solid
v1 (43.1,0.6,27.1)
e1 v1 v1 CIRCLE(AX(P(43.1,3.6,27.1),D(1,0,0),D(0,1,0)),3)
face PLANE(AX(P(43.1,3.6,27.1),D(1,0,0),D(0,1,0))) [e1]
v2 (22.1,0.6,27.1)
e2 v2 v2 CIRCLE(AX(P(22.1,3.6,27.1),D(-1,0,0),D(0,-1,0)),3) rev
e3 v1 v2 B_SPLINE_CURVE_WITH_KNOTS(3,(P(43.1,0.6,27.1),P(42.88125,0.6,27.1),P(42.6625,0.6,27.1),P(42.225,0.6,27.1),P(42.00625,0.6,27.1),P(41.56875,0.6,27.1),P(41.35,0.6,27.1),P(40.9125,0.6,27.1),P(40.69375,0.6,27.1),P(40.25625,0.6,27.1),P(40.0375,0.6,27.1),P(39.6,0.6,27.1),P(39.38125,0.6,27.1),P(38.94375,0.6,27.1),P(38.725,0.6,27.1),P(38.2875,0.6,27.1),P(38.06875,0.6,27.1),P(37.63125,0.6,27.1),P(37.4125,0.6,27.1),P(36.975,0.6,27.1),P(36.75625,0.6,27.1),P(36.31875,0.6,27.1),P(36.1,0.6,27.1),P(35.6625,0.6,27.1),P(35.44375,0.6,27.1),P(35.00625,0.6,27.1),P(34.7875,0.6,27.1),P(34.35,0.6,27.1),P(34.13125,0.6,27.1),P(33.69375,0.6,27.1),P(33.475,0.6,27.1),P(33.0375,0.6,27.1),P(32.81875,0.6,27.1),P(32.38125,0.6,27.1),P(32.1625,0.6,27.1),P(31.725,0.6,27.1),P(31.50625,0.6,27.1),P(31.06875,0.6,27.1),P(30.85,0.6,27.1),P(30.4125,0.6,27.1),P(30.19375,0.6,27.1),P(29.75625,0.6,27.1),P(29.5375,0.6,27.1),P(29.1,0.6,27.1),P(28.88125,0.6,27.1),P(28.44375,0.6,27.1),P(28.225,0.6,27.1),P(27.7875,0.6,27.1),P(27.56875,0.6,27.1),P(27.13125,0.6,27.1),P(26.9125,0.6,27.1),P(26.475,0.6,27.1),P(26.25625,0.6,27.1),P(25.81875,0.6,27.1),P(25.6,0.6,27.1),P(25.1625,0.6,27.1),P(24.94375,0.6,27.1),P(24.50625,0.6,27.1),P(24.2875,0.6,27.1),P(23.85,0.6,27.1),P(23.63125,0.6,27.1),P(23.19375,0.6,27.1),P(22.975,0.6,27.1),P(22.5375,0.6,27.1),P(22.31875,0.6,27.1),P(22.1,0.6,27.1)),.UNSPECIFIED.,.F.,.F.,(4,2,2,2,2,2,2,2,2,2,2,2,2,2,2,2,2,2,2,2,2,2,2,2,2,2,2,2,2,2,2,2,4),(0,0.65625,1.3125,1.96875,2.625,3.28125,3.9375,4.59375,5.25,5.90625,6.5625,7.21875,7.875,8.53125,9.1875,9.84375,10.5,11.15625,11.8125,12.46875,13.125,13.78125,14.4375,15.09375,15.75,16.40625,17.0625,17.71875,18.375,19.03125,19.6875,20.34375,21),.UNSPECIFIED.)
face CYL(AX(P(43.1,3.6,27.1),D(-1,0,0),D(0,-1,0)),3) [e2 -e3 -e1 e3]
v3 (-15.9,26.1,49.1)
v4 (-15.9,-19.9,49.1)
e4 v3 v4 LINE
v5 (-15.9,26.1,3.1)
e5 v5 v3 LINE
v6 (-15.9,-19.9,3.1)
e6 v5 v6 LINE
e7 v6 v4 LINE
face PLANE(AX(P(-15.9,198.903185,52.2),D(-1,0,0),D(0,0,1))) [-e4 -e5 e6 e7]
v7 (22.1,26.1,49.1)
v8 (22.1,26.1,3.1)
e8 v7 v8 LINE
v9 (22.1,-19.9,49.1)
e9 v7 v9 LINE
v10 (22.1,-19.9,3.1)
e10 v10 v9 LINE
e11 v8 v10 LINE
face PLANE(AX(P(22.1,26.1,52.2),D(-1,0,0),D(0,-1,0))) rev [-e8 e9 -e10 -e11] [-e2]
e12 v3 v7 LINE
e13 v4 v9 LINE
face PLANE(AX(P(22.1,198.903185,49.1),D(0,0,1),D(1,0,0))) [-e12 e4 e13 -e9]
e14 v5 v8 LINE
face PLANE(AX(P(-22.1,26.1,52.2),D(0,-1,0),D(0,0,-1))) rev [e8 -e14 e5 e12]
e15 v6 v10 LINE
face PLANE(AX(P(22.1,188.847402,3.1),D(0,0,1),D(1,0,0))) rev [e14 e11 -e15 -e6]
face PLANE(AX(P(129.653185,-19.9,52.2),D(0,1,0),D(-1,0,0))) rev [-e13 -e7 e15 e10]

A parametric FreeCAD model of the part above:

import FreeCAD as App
import Part
import Sketcher
from FreeCAD import Vector

doc = App.newDocument("Part")
body = doc.addObject("PartDesign::Body", "Body")

sketch1 = doc.addObject("Sketcher::SketchObject", "Sketch")
body.addObject(sketch1)
sketch1.AttachmentSupport = (doc.XY_Plane, [""])
sketch1.MapMode = "FlatFace"
sketch1.addGeometry(Part.LineSegment(Vector(-22, 26, 0), Vector(-22, -26, 0)), False)
sketch1.addGeometry(Part.LineSegment(Vector(-22, -26, 0), Vector(22, -26, 0)), False)
sketch1.addGeometry(Part.LineSegment(Vector(22, -26, 0), Vector(22, 26, 0)), False)
sketch1.addGeometry(Part.LineSegment(Vector(22, 26, 0), Vector(-22, 26, 0)), False)
sketch1.addConstraint(Sketcher.Constraint("Coincident", 0, 2, 1, 1))
sketch1.addConstraint(Sketcher.Constraint("Coincident", 1, 2, 2, 1))
sketch1.addConstraint(Sketcher.Constraint("Coincident", 2, 2, 3, 1))
sketch1.addConstraint(Sketcher.Constraint("Coincident", 3, 2, 0, 1))
sketch1.addConstraint(Sketcher.Constraint("Vertical", 0))
sketch1.addConstraint(Sketcher.Constraint("Horizontal", 1))
sketch1.addConstraint(Sketcher.Constraint("Vertical", 2))
sketch1.addConstraint(Sketcher.Constraint("Horizontal", 3))
sketch1.addConstraint(Sketcher.Constraint("Symmetric", 0, 2, 2, 2, -1, 1))
sketch1.addConstraint(Sketcher.Constraint("DistanceX", 1, 1, 1, 2, 44.2))
sketch1.addConstraint(Sketcher.Constraint("DistanceY", 0, 2, 0, 1, 52.2))
pad1 = doc.addObject("PartDesign::Pad", "Pad")
body.addObject(pad1)
pad1.Profile = sketch1
pad1.Length = 52.2

sketch2 = doc.addObject("Sketcher::SketchObject", "Sketch001")
body.addObject(sketch2)
sketch2.AttachmentSupport = (doc.YZ_Plane, [""])
sketch2.MapMode = "FlatFace"
sketch2.AttachmentOffset = App.Placement(Vector(0, 0, 22.1), App.Rotation())
sketch2.addGeometry(Part.LineSegment(Vector(-19.9, 28.6, 0), Vector(-19.9, 201.4, 0)), False)
sketch2.addGeometry(Part.LineSegment(Vector(-19.9, 201.4, 0), Vector(-295.7, 315.1, 0)), False)
sketch2.addGeometry(Part.LineSegment(Vector(-295.7, 315.1, 0), Vector(-409.5, 39.2, 0)), False)
sketch2.addGeometry(Part.LineSegment(Vector(-409.5, 39.2, 0), Vector(-133.7, -74.6, 0)), False)
sketch2.addGeometry(Part.LineSegment(Vector(-133.7, -74.6, 0), Vector(-26.1, 28.7, 0)), False)
sketch2.addGeometry(Part.LineSegment(Vector(-26.1, 28.7, 0), Vector(-22.4, 32.2, 0)), False)
sketch2.addGeometry(Part.LineSegment(Vector(-22.4, 32.2, 0), Vector(-21.4, 32.2, 0)), False)
sketch2.addGeometry(Part.LineSegment(Vector(-21.4, 32.2, 0), Vector(-21.4, 28.6, 0)), False)
sketch2.addGeometry(Part.LineSegment(Vector(-21.4, 28.6, 0), Vector(-19.9, 28.6, 0)), False)
sketch2.addConstraint(Sketcher.Constraint("Coincident", 0, 2, 1, 1))
sketch2.addConstraint(Sketcher.Constraint("Coincident", 1, 2, 2, 1))
sketch2.addConstraint(Sketcher.Constraint("Coincident", 2, 2, 3, 1))
sketch2.addConstraint(Sketcher.Constraint("Coincident", 3, 2, 4, 1))
sketch2.addConstraint(Sketcher.Constraint("Coincident", 4, 2, 5, 1))
sketch2.addConstraint(Sketcher.Constraint("Coincident", 5, 2, 6, 1))
sketch2.addConstraint(Sketcher.Constraint("Coincident", 6, 2, 7, 1))
sketch2.addConstraint(Sketcher.Constraint("Coincident", 7, 2, 8, 1))
sketch2.addConstraint(Sketcher.Constraint("Coincident", 8, 2, 0, 1))
sketch2.addConstraint(Sketcher.Constraint("Vertical", 0))
sketch2.addConstraint(Sketcher.Constraint("Horizontal", 6))
sketch2.addConstraint(Sketcher.Constraint("Vertical", 7))
sketch2.addConstraint(Sketcher.Constraint("Horizontal", 8))
sketch2.addConstraint(Sketcher.Constraint("Perpendicular", 1, 2))
sketch2.addConstraint(Sketcher.Constraint("Perpendicular", 2, 3))
sketch2.addConstraint(Sketcher.Constraint("Parallel", 4, 5))
sketch2.addConstraint(Sketcher.Constraint("Equal", 1, 3))
sketch2.addConstraint(Sketcher.Constraint("DistanceX", 6, 1, 6, 2, 1.0))
sketch2.addConstraint(Sketcher.Constraint("DistanceY", 7, 2, 7, 1, 3.7))
sketch2.addConstraint(Sketcher.Constraint("DistanceX", 8, 1, 8, 2, 1.55))
sketch2.addConstraint(Sketcher.Constraint("DistanceX", 0, 2, -1, 1, 19.9))
sketch2.addConstraint(Sketcher.Constraint("DistanceX", 4, 2, -1, 1, 26.1))
sketch2.addConstraint(Sketcher.Constraint("Distance", 5, 5.06))
sketch2.addConstraint(Sketcher.Constraint("DistanceY", -1, 1, 5, 2, 32.25))
sketch2.addConstraint(Sketcher.Constraint("DistanceY", 0, 1, 0, 2, 172.802291))
sketch2.addConstraint(Sketcher.Constraint("DistanceY", 3, 2, -1, 1, 74.553898))
sketch2.addConstraint(Sketcher.Constraint("Distance", 1, 298.304581))
pocket1 = doc.addObject("PartDesign::Pocket", "Pocket")
body.addObject(pocket1)
pocket1.Profile = sketch2
pocket1.Type = "ThroughAll"
pocket1.Midplane = True

sketch3 = doc.addObject("Sketcher::SketchObject", "Sketch002")
body.addObject(sketch3)
sketch3.AttachmentSupport = (doc.YZ_Plane, [""])
sketch3.MapMode = "FlatFace"
sketch3.AttachmentOffset = App.Placement(Vector(0, 0, 22.1), App.Rotation())
sketch3.addGeometry(Part.LineSegment(Vector(-19.9, -149.2, 0), Vector(-19.9, 23.6, 0)), False)
sketch3.addGeometry(Part.LineSegment(Vector(-19.9, 23.6, 0), Vector(-21.4, 23.6, 0)), False)
sketch3.addGeometry(Part.LineSegment(Vector(-21.4, 23.6, 0), Vector(-21.4, 19.9, 0)), False)
sketch3.addGeometry(Part.LineSegment(Vector(-21.4, 19.9, 0), Vector(-22.4, 19.9, 0)), False)
sketch3.addGeometry(Part.LineSegment(Vector(-22.4, 19.9, 0), Vector(-26.1, 23.5, 0)), False)
sketch3.addGeometry(Part.LineSegment(Vector(-26.1, 23.5, 0), Vector(-133.7, 126.8, 0)), False)
sketch3.addGeometry(Part.LineSegment(Vector(-133.7, 126.8, 0), Vector(-409.5, 13, 0)), False)
sketch3.addGeometry(Part.LineSegment(Vector(-409.5, 13, 0), Vector(-295.7, -262.9, 0)), False)
sketch3.addGeometry(Part.LineSegment(Vector(-295.7, -262.9, 0), Vector(-19.9, -149.2, 0)), False)
sketch3.addConstraint(Sketcher.Constraint("Coincident", 0, 2, 1, 1))
sketch3.addConstraint(Sketcher.Constraint("Coincident", 1, 2, 2, 1))
sketch3.addConstraint(Sketcher.Constraint("Coincident", 2, 2, 3, 1))
sketch3.addConstraint(Sketcher.Constraint("Coincident", 3, 2, 4, 1))
sketch3.addConstraint(Sketcher.Constraint("Coincident", 4, 2, 5, 1))
sketch3.addConstraint(Sketcher.Constraint("Coincident", 5, 2, 6, 1))
sketch3.addConstraint(Sketcher.Constraint("Coincident", 6, 2, 7, 1))
sketch3.addConstraint(Sketcher.Constraint("Coincident", 7, 2, 8, 1))
sketch3.addConstraint(Sketcher.Constraint("Coincident", 8, 2, 0, 1))
sketch3.addConstraint(Sketcher.Constraint("Vertical", 0))
sketch3.addConstraint(Sketcher.Constraint("Horizontal", 1))
sketch3.addConstraint(Sketcher.Constraint("Vertical", 2))
sketch3.addConstraint(Sketcher.Constraint("Horizontal", 3))
sketch3.addConstraint(Sketcher.Constraint("Parallel", 4, 5))
sketch3.addConstraint(Sketcher.Constraint("Perpendicular", 6, 7))
sketch3.addConstraint(Sketcher.Constraint("Perpendicular", 7, 8))
sketch3.addConstraint(Sketcher.Constraint("Equal", 6, 8))
sketch3.addConstraint(Sketcher.Constraint("DistanceX", 3, 2, 3, 1, 1.0))
sketch3.addConstraint(Sketcher.Constraint("DistanceY", 2, 2, 2, 1, 3.7))
sketch3.addConstraint(Sketcher.Constraint("DistanceX", 1, 2, 1, 1, 1.55))
sketch3.addConstraint(Sketcher.Constraint("DistanceX", 0, 2, -1, 1, 19.9))
sketch3.addConstraint(Sketcher.Constraint("DistanceX", 4, 2, -1, 1, 26.1))
sketch3.addConstraint(Sketcher.Constraint("Distance", 4, 5.06))
sketch3.addConstraint(Sketcher.Constraint("DistanceY", -1, 1, 0, 2, 23.65))
sketch3.addConstraint(Sketcher.Constraint("DistanceY", 0, 1, 0, 2, 172.802291))
sketch3.addConstraint(Sketcher.Constraint("DistanceY", -1, 1, 5, 2, 126.753898))
sketch3.addConstraint(Sketcher.Constraint("Distance", 6, 298.304581))
pocket2 = doc.addObject("PartDesign::Pocket", "Pocket001")
body.addObject(pocket2)
pocket2.Profile = sketch3
pocket2.Type = "ThroughAll"
pocket2.Midplane = True

sketch4 = doc.addObject("Sketcher::SketchObject", "Sketch003")
body.addObject(sketch4)
sketch4.AttachmentSupport = (doc.XZ_Plane, [""])
sketch4.MapMode = "FlatFace"
sketch4.AttachmentOffset = App.Placement(Vector(0, 0, -26.1), App.Rotation())
sketch4.addGeometry(Part.LineSegment(Vector(-15.9, 191.3, 0), Vector(-15.9, 28.6, 0)), False)
sketch4.addGeometry(Part.LineSegment(Vector(-15.9, 28.6, 0), Vector(-17.4, 28.6, 0)), False)
sketch4.addGeometry(Part.LineSegment(Vector(-17.4, 28.6, 0), Vector(-17.4, 32.2, 0)), False)
sketch4.addGeometry(Part.LineSegment(Vector(-17.4, 32.2, 0), Vector(-18.4, 32.2, 0)), False)
sketch4.addGeometry(Part.LineSegment(Vector(-18.4, 32.2, 0), Vector(-22.1, 28.7, 0)), False)
sketch4.addGeometry(Part.LineSegment(Vector(-22.1, 28.7, 0), Vector(-122.5, -67.6, 0)), False)
sketch4.addGeometry(Part.LineSegment(Vector(-122.5, -67.6, 0), Vector(-379.8, 38.3, 0)), False)
sketch4.addGeometry(Part.LineSegment(Vector(-379.8, 38.3, 0), Vector(-273.2, 297.2, 0)), False)
sketch4.addGeometry(Part.LineSegment(Vector(-273.2, 297.2, 0), Vector(-15.9, 191.3, 0)), False)
sketch4.addConstraint(Sketcher.Constraint("Coincident", 0, 2, 1, 1))
sketch4.addConstraint(Sketcher.Constraint("Coincident", 1, 2, 2, 1))
sketch4.addConstraint(Sketcher.Constraint("Coincident", 2, 2, 3, 1))
sketch4.addConstraint(Sketcher.Constraint("Coincident", 3, 2, 4, 1))
sketch4.addConstraint(Sketcher.Constraint("Coincident", 4, 2, 5, 1))
sketch4.addConstraint(Sketcher.Constraint("Coincident", 5, 2, 6, 1))
sketch4.addConstraint(Sketcher.Constraint("Coincident", 6, 2, 7, 1))
sketch4.addConstraint(Sketcher.Constraint("Coincident", 7, 2, 8, 1))
sketch4.addConstraint(Sketcher.Constraint("Coincident", 8, 2, 0, 1))
sketch4.addConstraint(Sketcher.Constraint("Vertical", 0))
sketch4.addConstraint(Sketcher.Constraint("Horizontal", 1))
sketch4.addConstraint(Sketcher.Constraint("Vertical", 2))
sketch4.addConstraint(Sketcher.Constraint("Horizontal", 3))
sketch4.addConstraint(Sketcher.Constraint("Parallel", 4, 5))
sketch4.addConstraint(Sketcher.Constraint("Perpendicular", 6, 7))
sketch4.addConstraint(Sketcher.Constraint("Perpendicular", 7, 8))
sketch4.addConstraint(Sketcher.Constraint("Equal", 6, 8))
sketch4.addConstraint(Sketcher.Constraint("DistanceX", 3, 2, 3, 1, 1.0))
sketch4.addConstraint(Sketcher.Constraint("DistanceY", 2, 1, 2, 2, 3.7))
sketch4.addConstraint(Sketcher.Constraint("DistanceX", 1, 2, 1, 1, 1.55))
sketch4.addConstraint(Sketcher.Constraint("DistanceX", 0, 2, -1, 1, 15.9))
sketch4.addConstraint(Sketcher.Constraint("DistanceX", 4, 2, -1, 1, 22.1))
sketch4.addConstraint(Sketcher.Constraint("Distance", 4, 5.06))
sketch4.addConstraint(Sketcher.Constraint("DistanceY", -1, 1, 0, 2, 28.55))
sketch4.addConstraint(Sketcher.Constraint("DistanceY", 0, 2, 0, 1, 162.78311))
sketch4.addConstraint(Sketcher.Constraint("Distance", 5, 139.13311))
sketch4.addConstraint(Sketcher.Constraint("Distance", 6, 278.266219))
pocket3 = doc.addObject("PartDesign::Pocket", "Pocket002")
body.addObject(pocket3)
pocket3.Profile = sketch4
pocket3.Type = "TwoLengths"
pocket3.Length = 78.059003
pocket3.Length2 = 46

sketch5 = doc.addObject("Sketcher::SketchObject", "Sketch004")
body.addObject(sketch5)
sketch5.AttachmentSupport = (doc.XZ_Plane, [""])
sketch5.MapMode = "FlatFace"
sketch5.AttachmentOffset = App.Placement(Vector(0, 0, -26.1), App.Rotation())
sketch5.addGeometry(Part.LineSegment(Vector(-15.9, 23.6, 0), Vector(-15.9, -139.1, 0)), False)
sketch5.addGeometry(Part.LineSegment(Vector(-15.9, -139.1, 0), Vector(-273.2, -245, 0)), False)
sketch5.addGeometry(Part.LineSegment(Vector(-273.2, -245, 0), Vector(-379.8, 13.9, 0)), False)
sketch5.addGeometry(Part.LineSegment(Vector(-379.8, 13.9, 0), Vector(-122.5, 119.8, 0)), False)
sketch5.addGeometry(Part.LineSegment(Vector(-122.5, 119.8, 0), Vector(-22.1, 23.5, 0)), False)
sketch5.addGeometry(Part.LineSegment(Vector(-22.1, 23.5, 0), Vector(-18.4, 19.9, 0)), False)
sketch5.addGeometry(Part.LineSegment(Vector(-18.4, 19.9, 0), Vector(-17.4, 19.9, 0)), False)
sketch5.addGeometry(Part.LineSegment(Vector(-17.4, 19.9, 0), Vector(-17.4, 23.6, 0)), False)
sketch5.addGeometry(Part.LineSegment(Vector(-17.4, 23.6, 0), Vector(-15.9, 23.6, 0)), False)
sketch5.addConstraint(Sketcher.Constraint("Coincident", 0, 2, 1, 1))
sketch5.addConstraint(Sketcher.Constraint("Coincident", 1, 2, 2, 1))
sketch5.addConstraint(Sketcher.Constraint("Coincident", 2, 2, 3, 1))
sketch5.addConstraint(Sketcher.Constraint("Coincident", 3, 2, 4, 1))
sketch5.addConstraint(Sketcher.Constraint("Coincident", 4, 2, 5, 1))
sketch5.addConstraint(Sketcher.Constraint("Coincident", 5, 2, 6, 1))
sketch5.addConstraint(Sketcher.Constraint("Coincident", 6, 2, 7, 1))
sketch5.addConstraint(Sketcher.Constraint("Coincident", 7, 2, 8, 1))
sketch5.addConstraint(Sketcher.Constraint("Coincident", 8, 2, 0, 1))
sketch5.addConstraint(Sketcher.Constraint("Vertical", 0))
sketch5.addConstraint(Sketcher.Constraint("Horizontal", 6))
sketch5.addConstraint(Sketcher.Constraint("Vertical", 7))
sketch5.addConstraint(Sketcher.Constraint("Horizontal", 8))
sketch5.addConstraint(Sketcher.Constraint("Perpendicular", 1, 2))
sketch5.addConstraint(Sketcher.Constraint("Perpendicular", 2, 3))
sketch5.addConstraint(Sketcher.Constraint("Parallel", 4, 5))
sketch5.addConstraint(Sketcher.Constraint("Equal", 1, 3))
sketch5.addConstraint(Sketcher.Constraint("DistanceX", 6, 1, 6, 2, 1.0))
sketch5.addConstraint(Sketcher.Constraint("DistanceY", 7, 1, 7, 2, 3.7))
sketch5.addConstraint(Sketcher.Constraint("DistanceX", 8, 1, 8, 2, 1.55))
sketch5.addConstraint(Sketcher.Constraint("DistanceX", 0, 2, -1, 1, 15.9))
sketch5.addConstraint(Sketcher.Constraint("DistanceX", 4, 2, -1, 1, 22.1))
sketch5.addConstraint(Sketcher.Constraint("Distance", 5, 5.06))
sketch5.addConstraint(Sketcher.Constraint("DistanceY", -1, 1, 5, 2, 19.95))
sketch5.addConstraint(Sketcher.Constraint("DistanceY", 0, 2, 0, 1, 162.78311))
sketch5.addConstraint(Sketcher.Constraint("Distance", 1, 278.266219))
sketch5.addConstraint(Sketcher.Constraint("Distance", 2, 280.017278))
pocket4 = doc.addObject("PartDesign::Pocket", "Pocket003")
body.addObject(pocket4)
pocket4.Profile = sketch5
pocket4.Type = "TwoLengths"
pocket4.Length = 78.059003
pocket4.Length2 = 46

sketch6 = doc.addObject("Sketcher::SketchObject", "Sketch005")
body.addObject(sketch6)
sketch6.AttachmentSupport = (doc.XY_Plane, [""])
sketch6.MapMode = "FlatFace"
sketch6.AttachmentOffset = App.Placement(Vector(0, 0, 28.55), App.Rotation())
sketch6.addGeometry(Part.LineSegment(Vector(-16, -20, 0), Vector(-161, -20, 0)), False)
sketch6.addGeometry(Part.LineSegment(Vector(-161, -20, 0), Vector(-358, -217, 0)), False)
sketch6.addGeometry(Part.LineSegment(Vector(-358, -217, 0), Vector(-213, -362, 0)), False)
sketch6.addGeometry(Part.LineSegment(Vector(-213, -362, 0), Vector(-16, -165, 0)), False)
sketch6.addGeometry(Part.LineSegment(Vector(-16, -165, 0), Vector(-16, -20, 0)), False)
sketch6.addConstraint(Sketcher.Constraint("Coincident", 0, 2, 1, 1))
sketch6.addConstraint(Sketcher.Constraint("Coincident", 1, 2, 2, 1))
sketch6.addConstraint(Sketcher.Constraint("Coincident", 2, 2, 3, 1))
sketch6.addConstraint(Sketcher.Constraint("Coincident", 3, 2, 4, 1))
sketch6.addConstraint(Sketcher.Constraint("Coincident", 4, 2, 0, 1))
sketch6.addConstraint(Sketcher.Constraint("Horizontal", 0))
sketch6.addConstraint(Sketcher.Constraint("Vertical", 4))
sketch6.addConstraint(Sketcher.Constraint("Perpendicular", 1, 2))
sketch6.addConstraint(Sketcher.Constraint("Perpendicular", 2, 3))
sketch6.addConstraint(Sketcher.Constraint("Equal", 1, 3))
sketch6.addConstraint(Sketcher.Constraint("DistanceY", 0, 2, -1, 1, 19.9))
sketch6.addConstraint(Sketcher.Constraint("DistanceX", 3, 2, -1, 1, 15.9))
sketch6.addConstraint(Sketcher.Constraint("DistanceX", 0, 2, 0, 1, 145.322842))
sketch6.addConstraint(Sketcher.Constraint("DistanceY", 4, 1, 4, 2, 145.316491))
sketch6.addConstraint(Sketcher.Constraint("DistanceY", 2, 2, -1, 1, 361.9702))
pocket5 = doc.addObject("PartDesign::Pocket", "Pocket004")
body.addObject(pocket5)
pocket5.Profile = sketch6
pocket5.Type = "ThroughAll"
pocket5.Midplane = True

sketch7 = doc.addObject("Sketcher::SketchObject", "Sketch006")
body.addObject(sketch7)
sketch7.AttachmentSupport = (doc.XZ_Plane, [""])
sketch7.MapMode = "FlatFace"
sketch7.AttachmentOffset = App.Placement(Vector(0, 0, -26.1), App.Rotation())
sketch7.addGeometry(Part.LineSegment(Vector(164, 49, 0), Vector(-158, 49, 0)), False)
sketch7.addGeometry(Part.LineSegment(Vector(-158, 49, 0), Vector(-158, 333, 0)), False)
sketch7.addGeometry(Part.LineSegment(Vector(-158, 333, 0), Vector(164, 333, 0)), False)
sketch7.addGeometry(Part.LineSegment(Vector(164, 333, 0), Vector(164, 49, 0)), False)
sketch7.addConstraint(Sketcher.Constraint("Coincident", 0, 2, 1, 1))
sketch7.addConstraint(Sketcher.Constraint("Coincident", 1, 2, 2, 1))
sketch7.addConstraint(Sketcher.Constraint("Coincident", 2, 2, 3, 1))
sketch7.addConstraint(Sketcher.Constraint("Coincident", 3, 2, 0, 1))
sketch7.addConstraint(Sketcher.Constraint("Horizontal", 0))
sketch7.addConstraint(Sketcher.Constraint("Vertical", 1))
sketch7.addConstraint(Sketcher.Constraint("Horizontal", 2))
sketch7.addConstraint(Sketcher.Constraint("Vertical", 3))
sketch7.addConstraint(Sketcher.Constraint("DistanceY", -1, 1, 0, 2, 49.1))
sketch7.addConstraint(Sketcher.Constraint("DistanceX", 0, 2, 0, 1, 322.255937))
sketch7.addConstraint(Sketcher.Constraint("DistanceY", 1, 1, 1, 2, 284.255937))
sketch7.addConstraint(Sketcher.Constraint("DistanceX", 0, 2, -1, 1, 158.027968))
pocket6 = doc.addObject("PartDesign::Pocket", "Pocket005")
body.addObject(pocket6)
pocket6.Profile = sketch7
pocket6.Type = "ThroughAll"
pocket6.Midplane = True

sketch8 = doc.addObject("Sketcher::SketchObject", "Sketch007")
body.addObject(sketch8)
sketch8.AttachmentSupport = (doc.XZ_Plane, [""])
sketch8.MapMode = "FlatFace"
sketch8.AttachmentOffset = App.Placement(Vector(0, 0, -26.1), App.Rotation())
sketch8.addGeometry(Part.LineSegment(Vector(-153, 3, 0), Vector(160, 3, 0)), False)
sketch8.addGeometry(Part.LineSegment(Vector(160, 3, 0), Vector(160, -272, 0)), False)
sketch8.addGeometry(Part.LineSegment(Vector(160, -272, 0), Vector(-153, -272, 0)), False)
sketch8.addGeometry(Part.LineSegment(Vector(-153, -272, 0), Vector(-153, 3, 0)), False)
sketch8.addConstraint(Sketcher.Constraint("Coincident", 0, 2, 1, 1))
sketch8.addConstraint(Sketcher.Constraint("Coincident", 1, 2, 2, 1))
sketch8.addConstraint(Sketcher.Constraint("Coincident", 2, 2, 3, 1))
sketch8.addConstraint(Sketcher.Constraint("Coincident", 3, 2, 0, 1))
sketch8.addConstraint(Sketcher.Constraint("Horizontal", 0))
sketch8.addConstraint(Sketcher.Constraint("Vertical", 1))
sketch8.addConstraint(Sketcher.Constraint("Horizontal", 2))
sketch8.addConstraint(Sketcher.Constraint("Vertical", 3))
sketch8.addConstraint(Sketcher.Constraint("DistanceY", -1, 1, 0, 2, 3.1))
sketch8.addConstraint(Sketcher.Constraint("DistanceX", 0, 1, 0, 2, 313.17492))
sketch8.addConstraint(Sketcher.Constraint("DistanceY", 1, 2, 1, 1, 275.17492))
sketch8.addConstraint(Sketcher.Constraint("DistanceX", -1, 1, 0, 2, 159.68746))
pocket7 = doc.addObject("PartDesign::Pocket", "Pocket006")
body.addObject(pocket7)
pocket7.Profile = sketch8
pocket7.Type = "ThroughAll"
pocket7.Midplane = True

sketch9 = doc.addObject("Sketcher::SketchObject", "Sketch008")
body.addObject(sketch9)
sketch9.AttachmentSupport = (doc.YZ_Plane, [""])
sketch9.MapMode = "FlatFace"
sketch9.AttachmentOffset = App.Placement(Vector(0, 0, 22.1), App.Rotation())
sketch9.addGeometry(Part.Circle(Vector(3.6, 27.1, 0), Vector(0, 0, 1), 3), False)
sketch9.addConstraint(Sketcher.Constraint("Diameter", 0, 6.0))
sketch9.addConstraint(Sketcher.Constraint("DistanceX", -1, 1, 0, 3, 3.6))
sketch9.addConstraint(Sketcher.Constraint("DistanceY", -1, 1, 0, 3, 27.1))
pad2 = doc.addObject("PartDesign::Pad", "Pad001")
body.addObject(pad2)
pad2.Profile = sketch9
pad2.Length = 21

sketch10 = doc.addObject("Sketcher::SketchObject", "Sketch009")
body.addObject(sketch10)
sketch10.AttachmentSupport = (doc.XZ_Plane, [""])
sketch10.MapMode = "FlatFace"
sketch10.AttachmentOffset = App.Placement(Vector(0, 0, -26.1), App.Rotation())
sketch10.addGeometry(Part.LineSegment(Vector(-16, 167, 0), Vector(-16, -115, 0)), False)
sketch10.addGeometry(Part.LineSegment(Vector(-16, -115, 0), Vector(-293, -115, 0)), False)
sketch10.addGeometry(Part.LineSegment(Vector(-293, -115, 0), Vector(-293, 167, 0)), False)
sketch10.addGeometry(Part.LineSegment(Vector(-293, 167, 0), Vector(-16, 167, 0)), False)
sketch10.addConstraint(Sketcher.Constraint("Coincident", 0, 2, 1, 1))
sketch10.addConstraint(Sketcher.Constraint("Coincident", 1, 2, 2, 1))
sketch10.addConstraint(Sketcher.Constraint("Coincident", 2, 2, 3, 1))
sketch10.addConstraint(Sketcher.Constraint("Coincident", 3, 2, 0, 1))
sketch10.addConstraint(Sketcher.Constraint("Vertical", 0))
sketch10.addConstraint(Sketcher.Constraint("Horizontal", 1))
sketch10.addConstraint(Sketcher.Constraint("Vertical", 2))
sketch10.addConstraint(Sketcher.Constraint("Horizontal", 3))
sketch10.addConstraint(Sketcher.Constraint("DistanceX", 0, 2, -1, 1, 15.9))
sketch10.addConstraint(Sketcher.Constraint("DistanceX", 1, 2, 1, 1, 277.019921))
sketch10.addConstraint(Sketcher.Constraint("DistanceY", 0, 2, 0, 1, 281.919921))
sketch10.addConstraint(Sketcher.Constraint("DistanceY", 0, 2, -1, 1, 114.859961))
pocket8 = doc.addObject("PartDesign::Pocket", "Pocket007")
body.addObject(pocket8)
pocket8.Profile = sketch10
pocket8.Type = "ThroughAll"
pocket8.Midplane = True

sketch11 = doc.addObject("Sketcher::SketchObject", "Sketch010")
body.addObject(sketch11)
sketch11.AttachmentSupport = (doc.YZ_Plane, [""])
sketch11.MapMode = "FlatFace"
sketch11.AttachmentOffset = App.Placement(Vector(0, 0, -15.9), App.Rotation())
sketch11.addGeometry(Part.LineSegment(Vector(-20, 144, 0), Vector(-20, -91, 0)), False)
sketch11.addGeometry(Part.LineSegment(Vector(-20, -91, 0), Vector(-250, -91, 0)), False)
sketch11.addGeometry(Part.LineSegment(Vector(-250, -91, 0), Vector(-250, 144, 0)), False)
sketch11.addGeometry(Part.LineSegment(Vector(-250, 144, 0), Vector(-20, 144, 0)), False)
sketch11.addConstraint(Sketcher.Constraint("Coincident", 0, 2, 1, 1))
sketch11.addConstraint(Sketcher.Constraint("Coincident", 1, 2, 2, 1))
sketch11.addConstraint(Sketcher.Constraint("Coincident", 2, 2, 3, 1))
sketch11.addConstraint(Sketcher.Constraint("Coincident", 3, 2, 0, 1))
sketch11.addConstraint(Sketcher.Constraint("Vertical", 0))
sketch11.addConstraint(Sketcher.Constraint("Horizontal", 1))
sketch11.addConstraint(Sketcher.Constraint("Vertical", 2))
sketch11.addConstraint(Sketcher.Constraint("Horizontal", 3))
sketch11.addConstraint(Sketcher.Constraint("DistanceX", 0, 2, -1, 1, 19.9))
sketch11.addConstraint(Sketcher.Constraint("DistanceX", 1, 2, 1, 1, 230.283713))
sketch11.addConstraint(Sketcher.Constraint("DistanceY", 0, 2, 0, 1, 235.183713))
sketch11.addConstraint(Sketcher.Constraint("DistanceY", 0, 2, -1, 1, 91.491857))
pocket9 = doc.addObject("PartDesign::Pocket", "Pocket008")
body.addObject(pocket9)
pocket9.Profile = sketch11
pocket9.Type = "ThroughAll"
pocket9.Midplane = True

doc.recompute()
